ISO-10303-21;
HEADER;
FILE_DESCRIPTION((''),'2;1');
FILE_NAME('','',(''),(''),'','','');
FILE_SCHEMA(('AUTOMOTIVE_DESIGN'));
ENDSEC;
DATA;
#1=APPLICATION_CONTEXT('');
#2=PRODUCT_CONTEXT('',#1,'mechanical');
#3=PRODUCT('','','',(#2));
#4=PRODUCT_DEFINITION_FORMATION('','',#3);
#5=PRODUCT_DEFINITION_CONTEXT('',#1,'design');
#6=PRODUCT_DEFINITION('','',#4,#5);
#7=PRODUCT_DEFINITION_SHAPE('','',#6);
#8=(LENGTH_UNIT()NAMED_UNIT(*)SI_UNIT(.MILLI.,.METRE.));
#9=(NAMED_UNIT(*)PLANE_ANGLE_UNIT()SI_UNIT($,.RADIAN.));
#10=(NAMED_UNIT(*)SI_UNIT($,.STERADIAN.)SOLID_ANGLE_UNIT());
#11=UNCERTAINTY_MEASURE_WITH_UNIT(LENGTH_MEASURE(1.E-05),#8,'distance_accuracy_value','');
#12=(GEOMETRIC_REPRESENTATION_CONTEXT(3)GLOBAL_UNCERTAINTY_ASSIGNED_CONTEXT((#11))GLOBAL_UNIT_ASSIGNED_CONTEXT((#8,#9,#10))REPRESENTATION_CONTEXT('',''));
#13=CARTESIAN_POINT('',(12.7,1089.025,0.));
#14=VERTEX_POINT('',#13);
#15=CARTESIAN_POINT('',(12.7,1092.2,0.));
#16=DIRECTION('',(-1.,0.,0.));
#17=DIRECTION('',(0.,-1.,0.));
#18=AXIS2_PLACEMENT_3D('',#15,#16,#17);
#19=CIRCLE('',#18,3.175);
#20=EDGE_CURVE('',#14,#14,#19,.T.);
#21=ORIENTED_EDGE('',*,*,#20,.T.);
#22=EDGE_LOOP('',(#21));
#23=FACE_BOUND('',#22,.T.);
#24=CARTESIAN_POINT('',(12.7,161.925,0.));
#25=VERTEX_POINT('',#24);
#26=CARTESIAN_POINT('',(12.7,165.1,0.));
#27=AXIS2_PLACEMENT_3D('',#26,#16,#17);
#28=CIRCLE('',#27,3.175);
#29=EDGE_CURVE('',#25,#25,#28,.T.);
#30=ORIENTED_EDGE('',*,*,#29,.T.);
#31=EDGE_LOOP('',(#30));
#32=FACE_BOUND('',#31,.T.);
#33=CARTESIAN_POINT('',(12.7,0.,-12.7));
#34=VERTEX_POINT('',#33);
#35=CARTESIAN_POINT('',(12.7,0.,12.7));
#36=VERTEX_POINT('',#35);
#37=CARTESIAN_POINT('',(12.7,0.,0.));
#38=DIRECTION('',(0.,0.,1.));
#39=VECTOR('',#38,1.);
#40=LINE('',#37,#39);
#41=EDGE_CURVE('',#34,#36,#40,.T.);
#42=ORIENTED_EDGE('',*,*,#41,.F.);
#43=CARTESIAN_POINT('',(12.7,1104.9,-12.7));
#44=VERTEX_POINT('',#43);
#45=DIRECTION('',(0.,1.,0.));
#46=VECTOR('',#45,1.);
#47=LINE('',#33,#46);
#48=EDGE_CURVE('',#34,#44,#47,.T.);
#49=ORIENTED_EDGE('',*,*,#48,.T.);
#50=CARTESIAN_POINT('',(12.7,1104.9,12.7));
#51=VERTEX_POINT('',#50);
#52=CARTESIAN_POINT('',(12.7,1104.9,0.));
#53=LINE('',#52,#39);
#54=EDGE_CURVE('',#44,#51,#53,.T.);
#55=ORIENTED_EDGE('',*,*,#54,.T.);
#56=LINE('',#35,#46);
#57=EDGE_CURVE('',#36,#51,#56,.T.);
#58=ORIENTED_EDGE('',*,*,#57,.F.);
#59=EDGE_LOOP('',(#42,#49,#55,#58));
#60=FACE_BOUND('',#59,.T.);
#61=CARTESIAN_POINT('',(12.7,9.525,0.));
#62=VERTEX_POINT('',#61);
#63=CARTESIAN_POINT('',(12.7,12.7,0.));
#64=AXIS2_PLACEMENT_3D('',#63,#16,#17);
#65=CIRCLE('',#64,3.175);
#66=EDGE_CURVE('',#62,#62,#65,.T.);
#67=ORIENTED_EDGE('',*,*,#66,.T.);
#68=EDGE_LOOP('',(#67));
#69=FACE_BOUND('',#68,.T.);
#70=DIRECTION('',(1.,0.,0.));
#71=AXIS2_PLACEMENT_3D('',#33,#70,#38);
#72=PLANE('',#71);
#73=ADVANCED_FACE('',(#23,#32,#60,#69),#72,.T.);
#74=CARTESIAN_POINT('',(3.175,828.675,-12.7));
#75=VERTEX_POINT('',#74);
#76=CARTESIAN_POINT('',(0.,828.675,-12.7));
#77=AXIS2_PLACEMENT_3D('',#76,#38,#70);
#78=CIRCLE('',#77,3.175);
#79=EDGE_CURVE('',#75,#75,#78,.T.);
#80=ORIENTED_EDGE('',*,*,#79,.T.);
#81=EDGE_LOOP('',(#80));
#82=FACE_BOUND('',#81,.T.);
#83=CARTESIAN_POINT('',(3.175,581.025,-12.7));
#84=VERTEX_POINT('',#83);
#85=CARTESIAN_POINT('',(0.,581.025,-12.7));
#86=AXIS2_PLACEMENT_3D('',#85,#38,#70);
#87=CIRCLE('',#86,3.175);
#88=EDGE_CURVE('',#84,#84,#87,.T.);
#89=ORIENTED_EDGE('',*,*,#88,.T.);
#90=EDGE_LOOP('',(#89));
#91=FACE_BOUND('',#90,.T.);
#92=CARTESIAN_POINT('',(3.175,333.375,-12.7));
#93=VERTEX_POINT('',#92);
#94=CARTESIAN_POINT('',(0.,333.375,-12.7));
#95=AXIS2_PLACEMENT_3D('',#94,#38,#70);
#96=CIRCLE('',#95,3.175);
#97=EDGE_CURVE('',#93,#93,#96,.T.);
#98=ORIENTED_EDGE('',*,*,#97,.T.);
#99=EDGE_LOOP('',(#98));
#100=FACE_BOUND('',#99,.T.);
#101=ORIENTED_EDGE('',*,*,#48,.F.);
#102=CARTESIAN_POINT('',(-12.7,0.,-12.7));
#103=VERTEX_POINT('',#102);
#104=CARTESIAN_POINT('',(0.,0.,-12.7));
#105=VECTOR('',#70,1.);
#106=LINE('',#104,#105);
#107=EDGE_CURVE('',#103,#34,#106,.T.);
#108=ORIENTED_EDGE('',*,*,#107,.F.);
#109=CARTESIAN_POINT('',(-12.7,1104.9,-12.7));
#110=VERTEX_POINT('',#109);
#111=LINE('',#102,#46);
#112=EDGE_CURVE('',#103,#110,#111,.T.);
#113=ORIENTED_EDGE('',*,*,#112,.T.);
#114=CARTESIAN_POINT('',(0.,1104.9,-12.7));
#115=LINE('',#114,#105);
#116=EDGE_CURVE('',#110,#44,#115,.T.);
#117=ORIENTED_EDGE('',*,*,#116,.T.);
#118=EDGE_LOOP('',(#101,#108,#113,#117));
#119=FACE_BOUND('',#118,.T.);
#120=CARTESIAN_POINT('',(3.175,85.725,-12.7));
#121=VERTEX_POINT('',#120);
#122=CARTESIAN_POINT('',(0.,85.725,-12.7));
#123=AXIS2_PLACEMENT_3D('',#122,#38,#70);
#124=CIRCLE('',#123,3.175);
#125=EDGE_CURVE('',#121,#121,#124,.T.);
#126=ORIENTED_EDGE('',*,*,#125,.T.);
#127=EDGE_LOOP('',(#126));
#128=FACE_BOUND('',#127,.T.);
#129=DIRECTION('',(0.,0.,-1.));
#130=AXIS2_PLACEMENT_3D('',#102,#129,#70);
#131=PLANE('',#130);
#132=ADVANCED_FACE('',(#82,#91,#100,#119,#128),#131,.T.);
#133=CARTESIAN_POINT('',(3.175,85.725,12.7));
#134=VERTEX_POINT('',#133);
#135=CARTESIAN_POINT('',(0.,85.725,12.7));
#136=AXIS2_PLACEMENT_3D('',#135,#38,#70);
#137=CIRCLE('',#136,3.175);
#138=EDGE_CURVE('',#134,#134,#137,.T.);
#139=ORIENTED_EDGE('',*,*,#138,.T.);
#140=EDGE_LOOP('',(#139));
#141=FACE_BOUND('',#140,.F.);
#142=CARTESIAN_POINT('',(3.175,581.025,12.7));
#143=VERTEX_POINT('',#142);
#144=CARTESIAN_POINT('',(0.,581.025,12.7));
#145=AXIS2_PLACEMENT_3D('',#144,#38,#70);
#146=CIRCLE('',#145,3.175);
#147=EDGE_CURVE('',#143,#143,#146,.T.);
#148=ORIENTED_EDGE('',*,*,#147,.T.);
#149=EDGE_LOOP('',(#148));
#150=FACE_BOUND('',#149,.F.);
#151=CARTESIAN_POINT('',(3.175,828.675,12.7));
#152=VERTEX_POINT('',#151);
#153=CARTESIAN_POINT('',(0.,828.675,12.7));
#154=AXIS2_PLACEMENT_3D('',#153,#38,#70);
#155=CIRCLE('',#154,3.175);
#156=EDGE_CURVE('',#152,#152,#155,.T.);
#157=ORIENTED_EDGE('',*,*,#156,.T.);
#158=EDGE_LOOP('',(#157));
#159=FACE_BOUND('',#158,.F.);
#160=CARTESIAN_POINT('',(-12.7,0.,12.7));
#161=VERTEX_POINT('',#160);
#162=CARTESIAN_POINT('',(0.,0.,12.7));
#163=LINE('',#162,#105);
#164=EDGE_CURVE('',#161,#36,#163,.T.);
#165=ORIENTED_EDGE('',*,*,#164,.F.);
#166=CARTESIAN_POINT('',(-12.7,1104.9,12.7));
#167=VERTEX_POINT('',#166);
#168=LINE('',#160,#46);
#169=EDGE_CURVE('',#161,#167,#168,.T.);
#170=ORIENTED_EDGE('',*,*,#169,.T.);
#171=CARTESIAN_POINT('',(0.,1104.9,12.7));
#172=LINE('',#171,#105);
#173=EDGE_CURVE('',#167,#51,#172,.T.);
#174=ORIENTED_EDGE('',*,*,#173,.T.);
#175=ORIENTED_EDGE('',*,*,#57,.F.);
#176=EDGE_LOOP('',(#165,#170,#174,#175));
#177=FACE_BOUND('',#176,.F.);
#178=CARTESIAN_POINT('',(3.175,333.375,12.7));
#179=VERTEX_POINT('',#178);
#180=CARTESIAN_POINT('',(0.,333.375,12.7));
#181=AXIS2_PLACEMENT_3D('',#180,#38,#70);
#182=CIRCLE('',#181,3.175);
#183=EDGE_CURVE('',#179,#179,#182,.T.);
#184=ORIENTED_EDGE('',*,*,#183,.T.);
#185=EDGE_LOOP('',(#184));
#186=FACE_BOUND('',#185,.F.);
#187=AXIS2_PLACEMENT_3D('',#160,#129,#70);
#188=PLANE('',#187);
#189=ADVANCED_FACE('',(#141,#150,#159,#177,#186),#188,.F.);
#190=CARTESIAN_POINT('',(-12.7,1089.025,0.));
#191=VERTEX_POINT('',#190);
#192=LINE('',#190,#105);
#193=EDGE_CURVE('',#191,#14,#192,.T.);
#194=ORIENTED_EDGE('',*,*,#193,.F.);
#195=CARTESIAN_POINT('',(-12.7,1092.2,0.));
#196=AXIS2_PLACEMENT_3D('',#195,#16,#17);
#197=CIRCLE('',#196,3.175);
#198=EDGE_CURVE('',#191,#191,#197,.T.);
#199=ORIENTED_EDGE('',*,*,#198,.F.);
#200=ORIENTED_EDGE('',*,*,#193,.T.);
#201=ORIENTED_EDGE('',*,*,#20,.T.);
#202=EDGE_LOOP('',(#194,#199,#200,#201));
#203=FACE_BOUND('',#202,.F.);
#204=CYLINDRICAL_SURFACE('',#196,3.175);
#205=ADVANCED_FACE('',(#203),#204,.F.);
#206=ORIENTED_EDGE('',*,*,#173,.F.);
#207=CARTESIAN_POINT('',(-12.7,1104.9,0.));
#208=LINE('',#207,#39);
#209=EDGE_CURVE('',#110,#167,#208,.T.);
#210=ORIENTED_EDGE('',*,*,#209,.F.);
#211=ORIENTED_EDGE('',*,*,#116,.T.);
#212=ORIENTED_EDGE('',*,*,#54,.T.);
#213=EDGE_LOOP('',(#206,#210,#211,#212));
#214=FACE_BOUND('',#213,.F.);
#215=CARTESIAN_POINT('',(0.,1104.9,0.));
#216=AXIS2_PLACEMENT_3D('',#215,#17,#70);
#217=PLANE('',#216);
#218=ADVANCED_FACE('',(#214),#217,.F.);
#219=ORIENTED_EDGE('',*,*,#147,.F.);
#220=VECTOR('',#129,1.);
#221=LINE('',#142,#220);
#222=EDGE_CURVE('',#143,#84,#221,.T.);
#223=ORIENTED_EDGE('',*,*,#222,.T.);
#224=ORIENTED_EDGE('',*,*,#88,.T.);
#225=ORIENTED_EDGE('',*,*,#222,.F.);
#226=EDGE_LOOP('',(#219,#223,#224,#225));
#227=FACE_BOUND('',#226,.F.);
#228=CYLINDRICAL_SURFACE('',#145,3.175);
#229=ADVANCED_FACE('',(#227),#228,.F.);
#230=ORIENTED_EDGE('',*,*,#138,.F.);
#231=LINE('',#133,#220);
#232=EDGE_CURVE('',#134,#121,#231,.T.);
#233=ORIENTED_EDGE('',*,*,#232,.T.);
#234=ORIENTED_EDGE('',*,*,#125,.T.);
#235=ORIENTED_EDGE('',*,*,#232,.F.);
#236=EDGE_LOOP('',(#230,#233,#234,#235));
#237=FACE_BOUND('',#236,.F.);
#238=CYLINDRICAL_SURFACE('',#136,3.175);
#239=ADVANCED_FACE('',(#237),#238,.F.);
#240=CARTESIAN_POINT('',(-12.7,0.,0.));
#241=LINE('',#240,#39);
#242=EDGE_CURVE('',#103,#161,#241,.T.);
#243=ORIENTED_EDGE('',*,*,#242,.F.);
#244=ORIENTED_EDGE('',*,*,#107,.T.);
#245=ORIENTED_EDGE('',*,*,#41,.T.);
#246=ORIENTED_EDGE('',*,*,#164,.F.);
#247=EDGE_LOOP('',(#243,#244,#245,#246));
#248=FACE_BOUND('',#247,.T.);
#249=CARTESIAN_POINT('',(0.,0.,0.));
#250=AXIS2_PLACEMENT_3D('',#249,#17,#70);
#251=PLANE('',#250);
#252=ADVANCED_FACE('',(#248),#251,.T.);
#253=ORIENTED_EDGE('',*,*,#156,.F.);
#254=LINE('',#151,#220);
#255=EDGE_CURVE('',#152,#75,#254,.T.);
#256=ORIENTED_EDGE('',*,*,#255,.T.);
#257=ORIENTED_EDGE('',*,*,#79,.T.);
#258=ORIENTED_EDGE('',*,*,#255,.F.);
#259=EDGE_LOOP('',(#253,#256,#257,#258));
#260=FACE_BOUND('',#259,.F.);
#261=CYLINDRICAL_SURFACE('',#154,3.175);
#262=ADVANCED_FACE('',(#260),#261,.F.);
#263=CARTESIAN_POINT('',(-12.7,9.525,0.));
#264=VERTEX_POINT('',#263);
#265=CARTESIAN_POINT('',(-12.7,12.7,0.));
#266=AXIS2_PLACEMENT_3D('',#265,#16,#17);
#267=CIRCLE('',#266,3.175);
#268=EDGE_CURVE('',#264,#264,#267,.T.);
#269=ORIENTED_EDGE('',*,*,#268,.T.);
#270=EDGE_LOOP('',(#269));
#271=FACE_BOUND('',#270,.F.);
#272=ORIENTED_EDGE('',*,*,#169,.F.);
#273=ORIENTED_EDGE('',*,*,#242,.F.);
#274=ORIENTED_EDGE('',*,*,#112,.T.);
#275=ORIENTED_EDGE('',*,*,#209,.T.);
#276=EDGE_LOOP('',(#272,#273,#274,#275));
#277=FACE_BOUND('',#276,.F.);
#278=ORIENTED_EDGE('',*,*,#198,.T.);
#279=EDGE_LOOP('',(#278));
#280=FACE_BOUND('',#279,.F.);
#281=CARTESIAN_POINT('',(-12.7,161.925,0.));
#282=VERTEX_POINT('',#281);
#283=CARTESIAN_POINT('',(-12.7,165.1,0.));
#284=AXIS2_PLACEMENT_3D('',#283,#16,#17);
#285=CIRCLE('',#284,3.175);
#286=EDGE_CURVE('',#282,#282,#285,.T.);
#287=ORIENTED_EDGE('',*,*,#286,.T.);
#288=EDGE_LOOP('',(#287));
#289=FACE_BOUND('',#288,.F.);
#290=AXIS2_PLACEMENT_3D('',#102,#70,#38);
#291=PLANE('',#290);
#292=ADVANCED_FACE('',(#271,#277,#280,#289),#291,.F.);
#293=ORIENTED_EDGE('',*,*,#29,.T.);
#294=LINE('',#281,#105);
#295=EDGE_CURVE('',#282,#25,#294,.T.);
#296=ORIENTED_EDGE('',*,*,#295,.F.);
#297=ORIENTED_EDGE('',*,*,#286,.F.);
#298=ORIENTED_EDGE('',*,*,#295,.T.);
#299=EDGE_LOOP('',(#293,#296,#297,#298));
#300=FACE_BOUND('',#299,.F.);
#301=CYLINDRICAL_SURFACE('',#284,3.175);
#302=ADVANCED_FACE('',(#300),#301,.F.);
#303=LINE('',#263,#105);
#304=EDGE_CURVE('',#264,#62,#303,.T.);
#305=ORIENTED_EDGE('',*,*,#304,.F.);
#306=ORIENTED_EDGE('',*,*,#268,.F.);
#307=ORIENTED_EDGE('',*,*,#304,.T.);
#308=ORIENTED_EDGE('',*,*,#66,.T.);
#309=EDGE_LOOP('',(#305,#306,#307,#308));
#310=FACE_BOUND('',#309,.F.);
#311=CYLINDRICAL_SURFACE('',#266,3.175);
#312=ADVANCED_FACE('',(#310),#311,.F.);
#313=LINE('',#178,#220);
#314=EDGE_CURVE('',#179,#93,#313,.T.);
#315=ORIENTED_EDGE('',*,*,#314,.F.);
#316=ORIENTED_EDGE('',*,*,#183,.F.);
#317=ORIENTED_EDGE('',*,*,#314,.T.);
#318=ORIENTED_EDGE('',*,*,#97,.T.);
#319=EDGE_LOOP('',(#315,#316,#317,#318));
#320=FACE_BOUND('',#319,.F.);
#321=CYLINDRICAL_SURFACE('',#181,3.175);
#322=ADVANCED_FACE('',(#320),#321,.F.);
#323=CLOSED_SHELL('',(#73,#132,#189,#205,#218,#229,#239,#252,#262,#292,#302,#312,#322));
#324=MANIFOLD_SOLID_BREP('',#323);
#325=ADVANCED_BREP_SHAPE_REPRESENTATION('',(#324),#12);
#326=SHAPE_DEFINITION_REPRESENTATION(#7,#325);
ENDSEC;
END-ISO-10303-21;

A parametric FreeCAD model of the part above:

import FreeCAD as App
import Part
import Sketcher
Q = App.Units.Quantity

doc = App.newDocument("Part")
body = doc.addObject("PartDesign::Body", "Body")

# Sketch on XZ plane
sketch1 = body.newObject("Sketcher::SketchObject", "Sketch")
sketch1.AttachmentSupport = (doc.getObject("XZ_Plane"), [""])
sketch1.MapMode = "FlatFace"
sketch1.addGeometry(Part.LineSegment(App.Vector(-13, 13, 0), App.Vector(-13, -13, 0)), False)
sketch1.addGeometry(Part.LineSegment(App.Vector(-13, -13, 0), App.Vector(13, -13, 0)), False)
sketch1.addGeometry(Part.LineSegment(App.Vector(13, -13, 0), App.Vector(13, 13, 0)), False)
sketch1.addGeometry(Part.LineSegment(App.Vector(13, 13, 0), App.Vector(-13, 13, 0)), False)
sketch1.addConstraint(Sketcher.Constraint("Coincident", 0, 2, 1, 1))
sketch1.addConstraint(Sketcher.Constraint("Coincident", 1, 2, 2, 1))
sketch1.addConstraint(Sketcher.Constraint("Coincident", 2, 2, 3, 1))
sketch1.addConstraint(Sketcher.Constraint("Coincident", 3, 2, 0, 1))
sketch1.addConstraint(Sketcher.Constraint("Vertical", 0))
sketch1.addConstraint(Sketcher.Constraint("Horizontal", 1))
sketch1.addConstraint(Sketcher.Constraint("Vertical", 2))
sketch1.addConstraint(Sketcher.Constraint("Horizontal", 3))
sketch1.addConstraint(Sketcher.Constraint("Symmetric", 0, 2, 2, 2, -1, 1))
sketch1.addConstraint(Sketcher.Constraint("Equal", 3, 0))
sketch1.addConstraint(Sketcher.Constraint("DistanceX", 1, 1, 1, 2, Q("1 in")))
pad1 = body.newObject("PartDesign::Pad", "Pad")
pad1.Profile = sketch1
pad1.Length = Q("43.5 in")
pad1.Reversed = True

# Sketch on YZ plane
sketch2 = body.newObject("Sketcher::SketchObject", "Sketch001")
sketch2.AttachmentSupport = (doc.getObject("YZ_Plane"), [""])
sketch2.MapMode = "FlatFace"
sketch2.AttachmentOffset = App.Placement(App.Vector(0, 0, -0.5 * 25.4), App.Rotation())
sketch2.addGeometry(Part.Circle(App.Vector(12.7, 0, 0), App.Vector(0, 0, 1), 3.2), False)
sketch2.addGeometry(Part.Circle(App.Vector(165.1, 0, 0), App.Vector(0, 0, 1), 3.2), False)
sketch2.addGeometry(Part.Circle(App.Vector(1092.2, 0, 0), App.Vector(0, 0, 1), 3.2), False)
sketch2.addConstraint(Sketcher.Constraint("Equal", 0, 1))
sketch2.addConstraint(Sketcher.Constraint("Equal", 1, 2))
sketch2.addConstraint(Sketcher.Constraint("PointOnObject", 0, 3, -1))
sketch2.addConstraint(Sketcher.Constraint("PointOnObject", 1, 3, -1))
sketch2.addConstraint(Sketcher.Constraint("PointOnObject", 2, 3, -1))
sketch2.addConstraint(Sketcher.Constraint("Diameter", 0, Q("0.25 in")))
sketch2.addConstraint(Sketcher.Constraint("DistanceX", -1, 1, 2, 3, Q("43 in")))
sketch2.addConstraint(Sketcher.Constraint("DistanceX", 0, 3, 1, 3, Q("6 in")))
sketch2.addConstraint(Sketcher.Constraint("DistanceX", -1, 1, 0, 3, Q("0.5 in")))
pocket1 = body.newObject("PartDesign::Pocket", "Pocket")
pocket1.Profile = sketch2
pocket1.Type = "ThroughAll"
pocket1.Reversed = True

# Sketch on XY plane
sketch3 = body.newObject("Sketcher::SketchObject", "Sketch002")
sketch3.AttachmentSupport = (doc.getObject("XY_Plane"), [""])
sketch3.MapMode = "FlatFace"
sketch3.AttachmentOffset = App.Placement(App.Vector(0, 0, 0.5 * 25.4), App.Rotation())
sketch3.addGeometry(Part.Circle(App.Vector(0, 85.7, 0), App.Vector(0, 0, 1), 3.2), False)
sketch3.addGeometry(Part.Circle(App.Vector(0, 333.4, 0), App.Vector(0, 0, 1), 3.2), False)
sketch3.addGeometry(Part.Circle(App.Vector(0, 581, 0), App.Vector(0, 0, 1), 3.2), False)
sketch3.addGeometry(Part.Circle(App.Vector(0, 828.7, 0), App.Vector(0, 0, 1), 3.2), False)
sketch3.addConstraint(Sketcher.Constraint("Equal", 0, 1))
sketch3.addConstraint(Sketcher.Constraint("Equal", 1, 2))
sketch3.addConstraint(Sketcher.Constraint("Equal", 2, 3))
sketch3.addConstraint(Sketcher.Constraint("PointOnObject", 0, 3, -2))
sketch3.addConstraint(Sketcher.Constraint("PointOnObject", 1, 3, -2))
sketch3.addConstraint(Sketcher.Constraint("PointOnObject", 2, 3, -2))
sketch3.addConstraint(Sketcher.Constraint("PointOnObject", 3, 3, -2))
sketch3.addConstraint(Sketcher.Constraint("Diameter", 0, Q("0.25 in")))
sketch3.addConstraint(Sketcher.Constraint("DistanceY", 0, 3, 2, 3, Q("19.5 in")))
sketch3.addConstraint(Sketcher.Constraint("DistanceY", 1, 3, 3, 3, Q("19.5 in")))
sketch3.addConstraint(Sketcher.Constraint("DistanceY", 0, 3, 1, 3, Q("9.75 in")))
sketch3.addConstraint(Sketcher.Constraint("DistanceY", -1, 1, 0, 3, Q("3.375 in")))
pocket2 = body.newObject("PartDesign::Pocket", "Pocket001")
pocket2.Profile = sketch3
pocket2.Type = "ThroughAll"

doc.recompute()
